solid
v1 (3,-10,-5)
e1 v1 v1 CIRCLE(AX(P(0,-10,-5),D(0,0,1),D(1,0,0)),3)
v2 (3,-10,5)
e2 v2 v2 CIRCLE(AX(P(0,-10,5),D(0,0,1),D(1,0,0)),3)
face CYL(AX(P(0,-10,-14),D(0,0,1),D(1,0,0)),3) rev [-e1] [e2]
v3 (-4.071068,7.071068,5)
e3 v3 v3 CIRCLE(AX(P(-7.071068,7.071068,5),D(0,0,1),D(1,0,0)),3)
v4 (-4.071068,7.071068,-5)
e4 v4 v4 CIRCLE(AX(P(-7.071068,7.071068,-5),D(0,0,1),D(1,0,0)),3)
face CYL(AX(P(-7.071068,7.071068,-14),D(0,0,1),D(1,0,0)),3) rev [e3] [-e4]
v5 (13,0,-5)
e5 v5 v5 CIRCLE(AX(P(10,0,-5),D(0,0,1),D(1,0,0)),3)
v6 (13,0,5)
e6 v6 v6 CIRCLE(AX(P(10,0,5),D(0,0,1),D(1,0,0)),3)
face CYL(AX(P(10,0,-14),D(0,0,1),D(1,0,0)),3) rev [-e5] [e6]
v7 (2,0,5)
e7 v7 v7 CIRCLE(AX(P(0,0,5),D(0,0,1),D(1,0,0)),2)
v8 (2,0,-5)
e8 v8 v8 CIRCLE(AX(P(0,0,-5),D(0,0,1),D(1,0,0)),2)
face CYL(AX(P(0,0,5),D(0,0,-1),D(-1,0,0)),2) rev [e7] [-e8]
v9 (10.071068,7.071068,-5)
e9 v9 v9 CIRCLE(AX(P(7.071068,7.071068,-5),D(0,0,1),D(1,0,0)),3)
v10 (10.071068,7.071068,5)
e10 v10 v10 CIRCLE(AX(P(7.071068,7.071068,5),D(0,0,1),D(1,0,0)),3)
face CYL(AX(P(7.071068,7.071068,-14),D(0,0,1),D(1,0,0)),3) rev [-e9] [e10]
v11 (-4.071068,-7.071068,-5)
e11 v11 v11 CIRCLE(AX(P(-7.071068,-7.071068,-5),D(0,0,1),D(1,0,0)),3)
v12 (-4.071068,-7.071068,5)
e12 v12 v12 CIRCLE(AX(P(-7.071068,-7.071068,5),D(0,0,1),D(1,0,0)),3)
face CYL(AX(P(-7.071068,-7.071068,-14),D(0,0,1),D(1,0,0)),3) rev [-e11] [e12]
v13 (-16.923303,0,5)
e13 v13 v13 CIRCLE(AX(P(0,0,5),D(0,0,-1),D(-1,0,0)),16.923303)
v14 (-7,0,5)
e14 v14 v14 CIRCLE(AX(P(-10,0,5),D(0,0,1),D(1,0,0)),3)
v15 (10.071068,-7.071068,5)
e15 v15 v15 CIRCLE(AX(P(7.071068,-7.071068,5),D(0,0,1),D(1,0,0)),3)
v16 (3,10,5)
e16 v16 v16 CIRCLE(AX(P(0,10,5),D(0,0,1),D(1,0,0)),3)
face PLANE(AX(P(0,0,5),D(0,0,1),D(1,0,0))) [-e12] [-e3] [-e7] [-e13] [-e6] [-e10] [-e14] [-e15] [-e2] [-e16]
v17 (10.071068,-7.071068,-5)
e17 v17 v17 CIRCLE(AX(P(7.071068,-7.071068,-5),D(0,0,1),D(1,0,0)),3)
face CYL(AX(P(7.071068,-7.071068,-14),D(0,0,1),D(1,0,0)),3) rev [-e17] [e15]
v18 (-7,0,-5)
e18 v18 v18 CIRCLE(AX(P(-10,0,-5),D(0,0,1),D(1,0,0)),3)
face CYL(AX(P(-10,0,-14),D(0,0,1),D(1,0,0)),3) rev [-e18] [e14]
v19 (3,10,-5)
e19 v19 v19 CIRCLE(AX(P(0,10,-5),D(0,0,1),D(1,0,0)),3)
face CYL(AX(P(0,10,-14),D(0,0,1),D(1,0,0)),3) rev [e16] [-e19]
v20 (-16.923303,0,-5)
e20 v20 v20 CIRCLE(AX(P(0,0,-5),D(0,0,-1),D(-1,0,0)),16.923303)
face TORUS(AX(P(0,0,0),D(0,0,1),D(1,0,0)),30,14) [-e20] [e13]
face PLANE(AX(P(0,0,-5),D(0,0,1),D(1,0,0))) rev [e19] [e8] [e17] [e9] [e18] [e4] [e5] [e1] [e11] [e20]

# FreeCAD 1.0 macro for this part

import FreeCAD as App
import Part
import Sketcher
from FreeCAD import Vector
Q = App.Units.Quantity

doc = App.newDocument("Part")
params = doc.addObject("Spreadsheet::Sheet", "Params")
for row, (alias, value) in enumerate([
    ("sketch1_diameter", "28 mm"),
    ("revolution_angle", "360 deg"),
    ("sketch2_diameter", "36 mm"),
    ("sketch2_diameter2", "4 mm"),
    ("pad1_length", "10 mm"),
    ("sketch3_diameter", "6 mm"),
], start=1):
    params.set(f"A{row}", alias)
    params.set(f"B{row}", "=" + value)
    params.setAlias(f"B{row}", alias)

body = doc.addObject("PartDesign::Body", "Body")

# Sketch on YZ plane
sketch1 = body.newObject("Sketcher::SketchObject", "Sketch")
sketch1.AttachmentSupport = (doc.getObject("YZ_Plane"), [""])
sketch1.MapMode = "FlatFace"
sketch1.addGeometry(Part.Circle(Vector(30, 0, 0), Vector(0, 0, 1), 14), False)
sketch1.addConstraint([
    Sketcher.Constraint("PointOnObject", 0, 3, -1),
    Sketcher.Constraint("Diameter", 0, Q("28 mm")),
    Sketcher.Constraint("DistanceX", -1, 1, 0, 3, Q("30 mm")),
])
sketch1.setExpression("Constraints[1]", "Params.sketch1_diameter")
revolution = body.newObject("PartDesign::Revolution", "Revolution")
revolution.Profile = sketch1
revolution.ReferenceAxis = (sketch1, ["V_Axis"])
revolution.setExpression("Angle", "Params.revolution_angle")

# Sketch on XY plane
sketch2 = body.newObject("Sketcher::SketchObject", "Sketch001")
sketch2.AttachmentSupport = (doc.getObject("XY_Plane"), [""])
sketch2.MapMode = "FlatFace"
sketch2.addGeometry([
    Part.Circle(Vector(0, 0, 0), Vector(0, 0, 1), 18),
    Part.Circle(Vector(0, 0, 0), Vector(0, 0, 1), 2),
], False)
sketch2.addConstraint([
    Sketcher.Constraint("Coincident", 0, 3, -1, 1),
    Sketcher.Constraint("Coincident", 1, 3, -1, 1),
    Sketcher.Constraint("Diameter", 0, Q("36 mm")),
    Sketcher.Constraint("Diameter", 1, Q("4 mm")),
])
sketch2.setExpression("Constraints[2]", "Params.sketch2_diameter")
sketch2.setExpression("Constraints[3]", "Params.sketch2_diameter2")
pad1 = body.newObject("PartDesign::Pad", "Pad")
pad1.Profile = sketch2
pad1.setExpression("Length", "Params.pad1_length")
pad1.Midplane = True

# Sketch on XY plane
sketch3 = body.newObject("Sketcher::SketchObject", "Sketch002")
sketch3.AttachmentSupport = (doc.getObject("XY_Plane"), [""])
sketch3.MapMode = "FlatFace"
sketch3.AttachmentOffset = App.Placement(Vector(0, 0, 5), App.Rotation())
sketch3.addGeometry([
    Part.Circle(Vector(0, 10, 0), Vector(0, 0, 1), 3),  # 0
    Part.Circle(Vector(7.1, 7.1, 0), Vector(0, 0, 1), 3),  # 1
    Part.Circle(Vector(10, 0, 0), Vector(0, 0, 1), 3),  # 2
    Part.Circle(Vector(7.1, -7.1, 0), Vector(0, 0, 1), 3),  # 3
    Part.Circle(Vector(0, -10, 0), Vector(0, 0, 1), 3),  # 4
    Part.Circle(Vector(-7.1, -7.1, 0), Vector(0, 0, 1), 3),  # 5
    Part.Circle(Vector(-10, 0, 0), Vector(0, 0, 1), 3),  # 6
    Part.Circle(Vector(-7.1, 7.1, 0), Vector(0, 0, 1), 3),  # 7
], False)
sketch3.addConstraint([
    Sketcher.Constraint("Equal", 0, 1),
    Sketcher.Constraint("Equal", 1, 2),
    Sketcher.Constraint("Equal", 2, 3),
    Sketcher.Constraint("Equal", 3, 4),
    Sketcher.Constraint("Equal", 4, 5),
    Sketcher.Constraint("Equal", 5, 6),
    Sketcher.Constraint("Equal", 6, 7),
    Sketcher.Constraint("Symmetric", 0, 3, 4, 3, -1, 1),
    Sketcher.Constraint("Symmetric", 1, 3, 5, 3, -1, 1),
    Sketcher.Constraint("Symmetric", 2, 3, 6, 3, -1, 1),
    Sketcher.Constraint("Symmetric", 3, 3, 7, 3, -1, 1),
    Sketcher.Constraint("Symmetric", 3, 3, 5, 3, -2),
    Sketcher.Constraint("PointOnObject", 0, 3, -2),
    Sketcher.Constraint("PointOnObject", 2, 3, -1),
    Sketcher.Constraint("Diameter", 0, Q("6 mm")),
    Sketcher.Constraint("DistanceY", -1, 1, 0, 3, Q("10 mm")),
    Sketcher.Constraint("DistanceX", -1, 1, 2, 3, Q("10 mm")),
    Sketcher.Constraint("DistanceX", -1, 1, 1, 3, Q("7.071068 mm")),
    Sketcher.Constraint("DistanceY", -1, 1, 1, 3, Q("7.071068 mm")),
])
sketch3.setExpression("Constraints[14]", "Params.sketch3_diameter")
pocket1 = body.newObject("PartDesign::Pocket", "Pocket")
pocket1.Profile = sketch3
pocket1.Type = "ThroughAll"

doc.recompute()
